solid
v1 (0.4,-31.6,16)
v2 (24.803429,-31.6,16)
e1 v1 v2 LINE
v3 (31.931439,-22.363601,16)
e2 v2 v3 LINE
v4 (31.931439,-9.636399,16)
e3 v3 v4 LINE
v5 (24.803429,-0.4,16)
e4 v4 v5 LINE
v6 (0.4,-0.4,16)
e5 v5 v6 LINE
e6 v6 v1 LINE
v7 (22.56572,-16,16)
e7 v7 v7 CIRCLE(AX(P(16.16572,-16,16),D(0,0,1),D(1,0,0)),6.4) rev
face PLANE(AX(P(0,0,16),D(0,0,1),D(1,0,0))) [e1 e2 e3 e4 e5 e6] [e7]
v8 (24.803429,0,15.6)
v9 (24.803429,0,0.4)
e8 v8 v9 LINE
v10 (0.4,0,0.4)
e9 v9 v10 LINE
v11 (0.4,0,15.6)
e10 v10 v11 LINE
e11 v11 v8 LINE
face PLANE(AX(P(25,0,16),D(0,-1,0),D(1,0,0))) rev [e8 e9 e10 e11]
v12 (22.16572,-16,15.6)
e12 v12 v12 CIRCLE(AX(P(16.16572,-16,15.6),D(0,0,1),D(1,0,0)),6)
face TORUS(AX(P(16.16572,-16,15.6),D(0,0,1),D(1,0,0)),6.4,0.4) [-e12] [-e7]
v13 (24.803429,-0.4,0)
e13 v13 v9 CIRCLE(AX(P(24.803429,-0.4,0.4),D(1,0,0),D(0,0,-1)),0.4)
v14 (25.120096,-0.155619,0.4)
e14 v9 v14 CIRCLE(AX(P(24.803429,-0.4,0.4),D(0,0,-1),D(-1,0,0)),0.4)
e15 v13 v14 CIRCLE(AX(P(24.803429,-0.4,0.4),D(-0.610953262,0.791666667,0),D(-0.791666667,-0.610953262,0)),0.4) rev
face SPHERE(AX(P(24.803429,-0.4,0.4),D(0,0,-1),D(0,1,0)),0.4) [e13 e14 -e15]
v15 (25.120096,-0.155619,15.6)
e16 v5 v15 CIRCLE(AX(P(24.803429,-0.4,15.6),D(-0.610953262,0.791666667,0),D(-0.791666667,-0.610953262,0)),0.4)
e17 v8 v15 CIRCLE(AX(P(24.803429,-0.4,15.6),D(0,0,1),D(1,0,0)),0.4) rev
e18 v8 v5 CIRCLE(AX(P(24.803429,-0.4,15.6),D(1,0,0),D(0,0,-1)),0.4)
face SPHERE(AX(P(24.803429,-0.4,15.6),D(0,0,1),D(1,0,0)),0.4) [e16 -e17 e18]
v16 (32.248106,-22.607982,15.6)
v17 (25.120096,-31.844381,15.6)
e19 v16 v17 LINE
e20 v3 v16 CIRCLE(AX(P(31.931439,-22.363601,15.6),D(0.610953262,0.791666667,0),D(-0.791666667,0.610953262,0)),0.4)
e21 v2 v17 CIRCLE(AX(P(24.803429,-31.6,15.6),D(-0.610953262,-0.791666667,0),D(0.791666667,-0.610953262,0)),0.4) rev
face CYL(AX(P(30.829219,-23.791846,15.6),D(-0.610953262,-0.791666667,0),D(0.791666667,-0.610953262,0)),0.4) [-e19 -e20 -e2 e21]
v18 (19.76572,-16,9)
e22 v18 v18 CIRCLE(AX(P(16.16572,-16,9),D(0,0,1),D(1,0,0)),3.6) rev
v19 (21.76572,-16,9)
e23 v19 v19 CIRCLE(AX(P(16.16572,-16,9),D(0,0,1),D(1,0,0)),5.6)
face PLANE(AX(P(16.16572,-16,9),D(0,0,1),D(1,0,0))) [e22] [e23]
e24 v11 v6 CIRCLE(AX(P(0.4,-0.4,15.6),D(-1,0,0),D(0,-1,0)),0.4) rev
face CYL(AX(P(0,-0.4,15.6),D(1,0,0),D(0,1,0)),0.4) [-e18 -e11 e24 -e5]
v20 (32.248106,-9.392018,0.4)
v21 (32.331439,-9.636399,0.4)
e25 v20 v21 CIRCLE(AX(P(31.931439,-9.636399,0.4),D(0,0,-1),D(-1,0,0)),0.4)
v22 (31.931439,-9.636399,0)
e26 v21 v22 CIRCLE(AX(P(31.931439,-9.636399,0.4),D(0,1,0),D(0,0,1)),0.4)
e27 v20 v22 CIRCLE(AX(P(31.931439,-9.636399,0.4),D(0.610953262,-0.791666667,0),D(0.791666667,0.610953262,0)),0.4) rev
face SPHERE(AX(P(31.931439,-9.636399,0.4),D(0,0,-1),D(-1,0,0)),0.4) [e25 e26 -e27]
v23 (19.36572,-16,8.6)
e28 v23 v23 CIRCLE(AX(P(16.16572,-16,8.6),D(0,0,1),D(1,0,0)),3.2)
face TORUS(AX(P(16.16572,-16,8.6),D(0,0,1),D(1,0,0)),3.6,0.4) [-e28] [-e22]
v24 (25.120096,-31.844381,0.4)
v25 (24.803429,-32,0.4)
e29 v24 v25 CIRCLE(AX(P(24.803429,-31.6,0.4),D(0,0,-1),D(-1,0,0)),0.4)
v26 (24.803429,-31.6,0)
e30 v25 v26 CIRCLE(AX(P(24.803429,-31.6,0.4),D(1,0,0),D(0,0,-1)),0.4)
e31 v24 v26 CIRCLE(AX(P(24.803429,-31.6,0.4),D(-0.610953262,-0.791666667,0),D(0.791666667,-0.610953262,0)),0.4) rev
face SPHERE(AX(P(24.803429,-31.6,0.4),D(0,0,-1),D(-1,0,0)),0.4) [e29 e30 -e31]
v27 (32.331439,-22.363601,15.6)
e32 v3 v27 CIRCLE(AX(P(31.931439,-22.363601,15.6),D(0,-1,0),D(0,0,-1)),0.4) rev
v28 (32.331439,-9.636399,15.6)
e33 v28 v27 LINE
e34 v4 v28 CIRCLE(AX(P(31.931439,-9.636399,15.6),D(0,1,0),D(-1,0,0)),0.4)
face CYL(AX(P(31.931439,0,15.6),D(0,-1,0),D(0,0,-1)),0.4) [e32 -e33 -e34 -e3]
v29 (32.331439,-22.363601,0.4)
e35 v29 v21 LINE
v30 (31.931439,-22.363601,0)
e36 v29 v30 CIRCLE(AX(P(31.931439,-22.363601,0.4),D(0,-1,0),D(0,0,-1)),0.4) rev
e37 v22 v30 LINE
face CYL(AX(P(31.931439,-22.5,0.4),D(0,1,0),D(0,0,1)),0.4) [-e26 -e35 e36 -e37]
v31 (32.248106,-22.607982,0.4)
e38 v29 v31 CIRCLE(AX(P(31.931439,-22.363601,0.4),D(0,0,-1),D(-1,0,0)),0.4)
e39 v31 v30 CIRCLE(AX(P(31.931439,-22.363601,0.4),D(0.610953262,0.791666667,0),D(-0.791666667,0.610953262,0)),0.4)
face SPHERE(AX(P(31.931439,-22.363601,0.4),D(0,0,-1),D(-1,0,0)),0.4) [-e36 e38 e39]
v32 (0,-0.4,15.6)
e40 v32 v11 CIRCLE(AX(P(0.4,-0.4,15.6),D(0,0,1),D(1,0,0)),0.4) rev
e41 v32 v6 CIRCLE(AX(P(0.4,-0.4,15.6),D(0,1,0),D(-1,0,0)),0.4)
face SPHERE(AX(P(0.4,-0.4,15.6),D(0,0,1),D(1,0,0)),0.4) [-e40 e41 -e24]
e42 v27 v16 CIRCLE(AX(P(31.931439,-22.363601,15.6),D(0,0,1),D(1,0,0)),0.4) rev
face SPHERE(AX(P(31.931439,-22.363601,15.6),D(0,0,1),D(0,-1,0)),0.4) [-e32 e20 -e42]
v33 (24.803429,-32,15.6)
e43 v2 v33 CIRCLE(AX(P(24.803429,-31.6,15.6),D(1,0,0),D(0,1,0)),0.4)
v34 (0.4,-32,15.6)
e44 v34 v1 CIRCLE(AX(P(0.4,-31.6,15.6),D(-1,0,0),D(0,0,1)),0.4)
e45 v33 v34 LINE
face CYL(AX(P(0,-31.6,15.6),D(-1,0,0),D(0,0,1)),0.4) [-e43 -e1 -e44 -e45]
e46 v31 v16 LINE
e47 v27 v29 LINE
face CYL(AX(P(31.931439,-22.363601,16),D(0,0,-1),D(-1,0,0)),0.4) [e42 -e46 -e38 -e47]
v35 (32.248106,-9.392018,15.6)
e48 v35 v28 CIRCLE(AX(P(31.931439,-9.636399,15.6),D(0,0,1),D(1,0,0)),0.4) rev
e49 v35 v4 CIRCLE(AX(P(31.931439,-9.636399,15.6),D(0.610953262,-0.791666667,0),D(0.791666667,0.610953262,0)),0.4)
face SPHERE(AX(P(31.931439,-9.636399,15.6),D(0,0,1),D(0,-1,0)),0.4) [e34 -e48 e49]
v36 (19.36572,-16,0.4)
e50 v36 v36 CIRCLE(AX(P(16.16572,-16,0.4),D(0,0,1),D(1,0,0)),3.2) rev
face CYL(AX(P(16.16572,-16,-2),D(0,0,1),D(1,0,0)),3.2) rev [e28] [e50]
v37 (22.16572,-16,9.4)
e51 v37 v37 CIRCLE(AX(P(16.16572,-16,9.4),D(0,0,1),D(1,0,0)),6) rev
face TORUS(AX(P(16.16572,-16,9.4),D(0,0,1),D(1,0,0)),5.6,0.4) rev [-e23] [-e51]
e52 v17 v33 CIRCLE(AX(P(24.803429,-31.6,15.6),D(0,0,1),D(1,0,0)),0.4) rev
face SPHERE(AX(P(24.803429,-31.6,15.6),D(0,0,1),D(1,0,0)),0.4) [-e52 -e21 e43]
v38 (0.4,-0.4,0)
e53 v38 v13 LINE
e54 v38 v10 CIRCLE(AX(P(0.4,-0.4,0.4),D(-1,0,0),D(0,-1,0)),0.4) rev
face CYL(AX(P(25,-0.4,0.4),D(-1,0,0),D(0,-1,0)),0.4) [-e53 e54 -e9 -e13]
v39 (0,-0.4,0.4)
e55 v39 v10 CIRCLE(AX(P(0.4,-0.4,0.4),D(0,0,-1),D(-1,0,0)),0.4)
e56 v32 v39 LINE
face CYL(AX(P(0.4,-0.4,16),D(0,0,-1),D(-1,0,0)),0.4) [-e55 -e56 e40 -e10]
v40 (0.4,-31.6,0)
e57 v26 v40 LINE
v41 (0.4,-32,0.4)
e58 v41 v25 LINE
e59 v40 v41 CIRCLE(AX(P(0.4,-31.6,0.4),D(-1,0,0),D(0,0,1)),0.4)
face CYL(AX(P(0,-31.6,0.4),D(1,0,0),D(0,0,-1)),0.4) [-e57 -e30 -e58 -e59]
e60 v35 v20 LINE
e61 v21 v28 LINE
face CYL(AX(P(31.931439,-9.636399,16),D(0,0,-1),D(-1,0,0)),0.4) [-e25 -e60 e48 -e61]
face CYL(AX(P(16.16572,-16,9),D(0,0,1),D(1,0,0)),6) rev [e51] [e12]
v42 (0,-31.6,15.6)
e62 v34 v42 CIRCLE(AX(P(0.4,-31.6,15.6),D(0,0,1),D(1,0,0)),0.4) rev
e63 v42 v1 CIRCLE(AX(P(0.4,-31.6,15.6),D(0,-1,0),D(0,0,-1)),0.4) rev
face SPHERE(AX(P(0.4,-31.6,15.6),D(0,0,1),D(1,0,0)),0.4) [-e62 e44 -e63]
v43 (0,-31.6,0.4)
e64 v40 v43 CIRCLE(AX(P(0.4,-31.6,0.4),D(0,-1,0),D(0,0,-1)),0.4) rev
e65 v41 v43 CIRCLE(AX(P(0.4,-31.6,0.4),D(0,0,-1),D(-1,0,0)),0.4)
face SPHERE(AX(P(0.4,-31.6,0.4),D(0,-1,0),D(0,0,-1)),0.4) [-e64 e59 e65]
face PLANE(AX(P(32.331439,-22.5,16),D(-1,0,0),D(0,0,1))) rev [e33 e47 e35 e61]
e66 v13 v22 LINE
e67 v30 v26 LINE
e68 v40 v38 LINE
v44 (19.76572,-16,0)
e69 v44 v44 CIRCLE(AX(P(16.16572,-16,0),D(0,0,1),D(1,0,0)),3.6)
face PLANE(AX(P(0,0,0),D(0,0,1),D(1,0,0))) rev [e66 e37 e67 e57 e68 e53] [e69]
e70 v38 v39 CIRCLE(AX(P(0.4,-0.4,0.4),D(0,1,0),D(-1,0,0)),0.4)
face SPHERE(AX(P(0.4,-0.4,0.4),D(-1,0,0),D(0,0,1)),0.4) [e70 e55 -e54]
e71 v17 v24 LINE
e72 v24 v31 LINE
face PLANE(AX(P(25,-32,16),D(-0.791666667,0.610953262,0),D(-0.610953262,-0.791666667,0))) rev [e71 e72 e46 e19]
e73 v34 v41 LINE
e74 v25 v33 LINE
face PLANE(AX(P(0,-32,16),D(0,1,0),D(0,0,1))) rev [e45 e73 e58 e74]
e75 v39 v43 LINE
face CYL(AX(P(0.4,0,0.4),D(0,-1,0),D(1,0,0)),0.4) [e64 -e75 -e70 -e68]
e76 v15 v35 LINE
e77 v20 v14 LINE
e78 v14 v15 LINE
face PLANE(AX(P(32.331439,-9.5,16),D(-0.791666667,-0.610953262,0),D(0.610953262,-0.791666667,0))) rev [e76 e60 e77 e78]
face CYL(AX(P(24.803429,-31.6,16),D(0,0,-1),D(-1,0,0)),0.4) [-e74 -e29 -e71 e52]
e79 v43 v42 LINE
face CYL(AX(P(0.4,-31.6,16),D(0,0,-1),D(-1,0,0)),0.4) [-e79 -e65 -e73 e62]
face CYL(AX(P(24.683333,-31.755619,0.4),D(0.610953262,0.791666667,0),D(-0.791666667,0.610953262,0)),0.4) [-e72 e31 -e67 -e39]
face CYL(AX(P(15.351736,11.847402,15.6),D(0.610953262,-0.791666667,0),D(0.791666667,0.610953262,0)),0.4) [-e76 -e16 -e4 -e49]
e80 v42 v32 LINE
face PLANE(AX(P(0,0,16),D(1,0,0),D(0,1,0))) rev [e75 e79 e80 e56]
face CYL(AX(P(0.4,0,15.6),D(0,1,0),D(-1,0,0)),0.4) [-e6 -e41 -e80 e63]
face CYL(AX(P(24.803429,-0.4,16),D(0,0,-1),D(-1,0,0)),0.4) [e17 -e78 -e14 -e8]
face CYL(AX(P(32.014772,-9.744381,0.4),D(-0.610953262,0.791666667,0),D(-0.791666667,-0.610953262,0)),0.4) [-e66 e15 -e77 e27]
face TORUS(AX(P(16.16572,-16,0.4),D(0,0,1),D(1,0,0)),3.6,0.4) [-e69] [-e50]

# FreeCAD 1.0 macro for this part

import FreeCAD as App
import Part
import Sketcher
from FreeCAD import Vector
Q = App.Units.Quantity


def add_polygon(sketch, points):
    """Adds a closed chain of lines whose ends are joined by coincident constraints."""
    first, n = sketch.GeometryCount, len(points)
    for a, b in zip(points, points[1:] + points[:1]):
        sketch.addGeometry(Part.LineSegment(App.Vector(*a, 0), App.Vector(*b, 0)), False)
    for i in range(n):
        sketch.addConstraint(Sketcher.Constraint("Coincident", first + i, 2, first + (i + 1) % n, 1))

doc = App.newDocument("Part")
body = doc.addObject("PartDesign::Body", "Body")

# Sketch on XY plane
sketch1 = doc.addObject("Sketcher::SketchObject", "Sketch")
body.addObject(sketch1)
sketch1.AttachmentSupport = (doc.XY_Plane, [""])
sketch1.MapMode = "FlatFace"
add_polygon(sketch1, [(0, 0), (0, -32), (25, -32), (32, -22), (32, -10), (25, 0)])  # lines 0-5
sketch1.addConstraint(Sketcher.Constraint("Vertical", 0))
sketch1.addConstraint(Sketcher.Constraint("Horizontal", 1))
sketch1.addConstraint(Sketcher.Constraint("Vertical", 3))
sketch1.addConstraint(Sketcher.Constraint("Horizontal", 5))
sketch1.addConstraint(Sketcher.Constraint("Coincident", 5, 2, -1, 1))
sketch1.addConstraint(Sketcher.Constraint("Vertical", 1, 2, 4, 2))
sketch1.addConstraint(Sketcher.Constraint("Equal", 2, 4))
sketch1.addConstraint(Sketcher.Constraint("DistanceX", 1, 1, 1, 2, Q("25 mm")))
sketch1.addConstraint(Sketcher.Constraint("DistanceY", 0, 2, 0, 1, Q("32 mm")))
sketch1.addConstraint(Sketcher.Constraint("DistanceY", 3, 1, 3, 2, Q("13 mm")))
sketch1.addConstraint(Sketcher.Constraint("Distance", 2, Q("12 mm")))
pad1 = doc.addObject("PartDesign::Pad", "Pad")
body.addObject(pad1)
pad1.Profile = sketch1
pad1.Length = 16

# Sketch on XY plane
sketch2 = doc.addObject("Sketcher::SketchObject", "Sketch001")
body.addObject(sketch2)
sketch2.AttachmentSupport = (doc.XY_Plane, [""])
sketch2.MapMode = "FlatFace"
sketch2.AttachmentOffset = App.Placement(Vector(0, 0, 16), App.Rotation())
sketch2.addGeometry(Part.Circle(Vector(16, -16, 0), Vector(0, 0, 1), 6), False)
sketch2.addConstraint(Sketcher.Constraint("Diameter", 0, Q("12 mm")))
sketch2.addConstraint(Sketcher.Constraint("DistanceY", 0, 3, -1, 1, Q("16 mm")))
sketch2.addConstraint(Sketcher.Constraint("DistanceX", -1, 1, 0, 3, Q("16.16572 mm")))
pocket1 = doc.addObject("PartDesign::Pocket", "Pocket")
body.addObject(pocket1)
pocket1.Profile = sketch2
pocket1.Length = 7

# Sketch on XY plane
sketch3 = doc.addObject("Sketcher::SketchObject", "Sketch002")
body.addObject(sketch3)
sketch3.AttachmentSupport = (doc.XY_Plane, [""])
sketch3.MapMode = "FlatFace"
sketch3.AttachmentOffset = App.Placement(Vector(0, 0, 9), App.Rotation())
sketch3.addGeometry(Part.Circle(Vector(16.2, -16, 0), Vector(0, 0, 1), 3.2), False)
sketch3.addConstraint(Sketcher.Constraint("Diameter", 0, Q("6.4 mm")))
sketch3.addConstraint(Sketcher.Constraint("DistanceY", 0, 3, -1, 1, Q("16 mm")))
sketch3.addConstraint(Sketcher.Constraint("DistanceX", -1, 1, 0, 3, Q("16.16572 mm")))
pocket2 = doc.addObject("PartDesign::Pocket", "Pocket001")
body.addObject(pocket2)
pocket2.Profile = sketch3
pocket2.Length = 11
doc.recompute()

fillet = doc.addObject("PartDesign::Fillet", "Fillet")
body.addObject(fillet)
fillet.Base = (pocket2, ["Edge1"])
fillet.UseAllEdges = True
fillet.Radius = 0.4

doc.recompute()
